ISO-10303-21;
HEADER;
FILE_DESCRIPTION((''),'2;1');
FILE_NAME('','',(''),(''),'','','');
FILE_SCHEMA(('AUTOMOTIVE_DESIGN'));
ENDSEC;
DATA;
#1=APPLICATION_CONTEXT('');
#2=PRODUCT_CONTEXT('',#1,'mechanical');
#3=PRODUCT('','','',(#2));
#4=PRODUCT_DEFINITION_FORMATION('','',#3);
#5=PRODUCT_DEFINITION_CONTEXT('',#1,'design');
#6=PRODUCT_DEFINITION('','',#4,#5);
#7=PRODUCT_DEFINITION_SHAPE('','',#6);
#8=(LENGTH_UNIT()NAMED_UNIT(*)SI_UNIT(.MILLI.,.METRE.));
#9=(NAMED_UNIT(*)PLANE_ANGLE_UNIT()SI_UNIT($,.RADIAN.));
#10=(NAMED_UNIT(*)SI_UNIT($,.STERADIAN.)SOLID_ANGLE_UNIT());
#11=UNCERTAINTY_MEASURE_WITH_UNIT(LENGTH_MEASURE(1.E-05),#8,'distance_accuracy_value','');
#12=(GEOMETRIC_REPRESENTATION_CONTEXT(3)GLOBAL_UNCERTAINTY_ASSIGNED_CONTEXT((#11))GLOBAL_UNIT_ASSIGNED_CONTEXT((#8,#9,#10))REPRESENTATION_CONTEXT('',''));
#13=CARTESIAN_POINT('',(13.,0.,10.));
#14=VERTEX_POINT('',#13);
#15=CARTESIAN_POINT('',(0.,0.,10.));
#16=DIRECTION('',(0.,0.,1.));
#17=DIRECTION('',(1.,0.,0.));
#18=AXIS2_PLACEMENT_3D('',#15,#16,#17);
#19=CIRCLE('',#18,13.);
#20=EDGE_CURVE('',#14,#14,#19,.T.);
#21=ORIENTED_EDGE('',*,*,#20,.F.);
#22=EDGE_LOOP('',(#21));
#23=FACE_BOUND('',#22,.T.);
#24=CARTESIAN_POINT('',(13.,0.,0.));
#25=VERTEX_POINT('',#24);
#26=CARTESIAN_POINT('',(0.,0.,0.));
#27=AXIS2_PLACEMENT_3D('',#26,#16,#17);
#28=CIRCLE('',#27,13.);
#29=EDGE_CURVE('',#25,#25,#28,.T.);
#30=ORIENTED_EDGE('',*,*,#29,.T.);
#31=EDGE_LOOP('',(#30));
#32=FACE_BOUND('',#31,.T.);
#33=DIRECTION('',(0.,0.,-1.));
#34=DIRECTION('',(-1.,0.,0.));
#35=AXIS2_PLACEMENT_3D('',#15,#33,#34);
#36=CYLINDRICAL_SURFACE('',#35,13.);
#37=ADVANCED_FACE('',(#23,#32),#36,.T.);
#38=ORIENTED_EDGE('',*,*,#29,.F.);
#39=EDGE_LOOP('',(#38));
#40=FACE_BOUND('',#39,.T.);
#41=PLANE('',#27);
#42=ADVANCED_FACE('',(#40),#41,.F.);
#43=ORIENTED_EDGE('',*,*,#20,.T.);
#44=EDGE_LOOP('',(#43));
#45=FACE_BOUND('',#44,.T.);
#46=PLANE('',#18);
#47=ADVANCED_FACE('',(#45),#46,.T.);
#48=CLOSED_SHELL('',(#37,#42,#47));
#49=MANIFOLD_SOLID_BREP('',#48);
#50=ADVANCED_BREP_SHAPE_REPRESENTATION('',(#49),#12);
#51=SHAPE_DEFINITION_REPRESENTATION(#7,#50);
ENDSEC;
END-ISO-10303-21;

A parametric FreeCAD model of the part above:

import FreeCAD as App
import Part
import Sketcher

doc = App.newDocument("Part")
body = doc.addObject("PartDesign::Body", "Body")

# Sketch on XY plane
sketch1 = doc.addObject("Sketcher::SketchObject", "Sketch")
body.addObject(sketch1)
sketch1.AttachmentSupport = (doc.XY_Plane, [""])
sketch1.MapMode = "FlatFace"
sketch1.addGeometry(Part.Circle(App.Vector(0, 0, 0), App.Vector(0, 0, 1), 13), False)
sketch1.addConstraint(Sketcher.Constraint("Coincident", 0, 3, -1, 1))
sketch1.addConstraint(Sketcher.Constraint("Diameter", 0, 26.0))
pad1 = doc.addObject("PartDesign::Pad", "Pad")
body.addObject(pad1)
pad1.Profile = sketch1
pad1.Length = 10

doc.recompute()
